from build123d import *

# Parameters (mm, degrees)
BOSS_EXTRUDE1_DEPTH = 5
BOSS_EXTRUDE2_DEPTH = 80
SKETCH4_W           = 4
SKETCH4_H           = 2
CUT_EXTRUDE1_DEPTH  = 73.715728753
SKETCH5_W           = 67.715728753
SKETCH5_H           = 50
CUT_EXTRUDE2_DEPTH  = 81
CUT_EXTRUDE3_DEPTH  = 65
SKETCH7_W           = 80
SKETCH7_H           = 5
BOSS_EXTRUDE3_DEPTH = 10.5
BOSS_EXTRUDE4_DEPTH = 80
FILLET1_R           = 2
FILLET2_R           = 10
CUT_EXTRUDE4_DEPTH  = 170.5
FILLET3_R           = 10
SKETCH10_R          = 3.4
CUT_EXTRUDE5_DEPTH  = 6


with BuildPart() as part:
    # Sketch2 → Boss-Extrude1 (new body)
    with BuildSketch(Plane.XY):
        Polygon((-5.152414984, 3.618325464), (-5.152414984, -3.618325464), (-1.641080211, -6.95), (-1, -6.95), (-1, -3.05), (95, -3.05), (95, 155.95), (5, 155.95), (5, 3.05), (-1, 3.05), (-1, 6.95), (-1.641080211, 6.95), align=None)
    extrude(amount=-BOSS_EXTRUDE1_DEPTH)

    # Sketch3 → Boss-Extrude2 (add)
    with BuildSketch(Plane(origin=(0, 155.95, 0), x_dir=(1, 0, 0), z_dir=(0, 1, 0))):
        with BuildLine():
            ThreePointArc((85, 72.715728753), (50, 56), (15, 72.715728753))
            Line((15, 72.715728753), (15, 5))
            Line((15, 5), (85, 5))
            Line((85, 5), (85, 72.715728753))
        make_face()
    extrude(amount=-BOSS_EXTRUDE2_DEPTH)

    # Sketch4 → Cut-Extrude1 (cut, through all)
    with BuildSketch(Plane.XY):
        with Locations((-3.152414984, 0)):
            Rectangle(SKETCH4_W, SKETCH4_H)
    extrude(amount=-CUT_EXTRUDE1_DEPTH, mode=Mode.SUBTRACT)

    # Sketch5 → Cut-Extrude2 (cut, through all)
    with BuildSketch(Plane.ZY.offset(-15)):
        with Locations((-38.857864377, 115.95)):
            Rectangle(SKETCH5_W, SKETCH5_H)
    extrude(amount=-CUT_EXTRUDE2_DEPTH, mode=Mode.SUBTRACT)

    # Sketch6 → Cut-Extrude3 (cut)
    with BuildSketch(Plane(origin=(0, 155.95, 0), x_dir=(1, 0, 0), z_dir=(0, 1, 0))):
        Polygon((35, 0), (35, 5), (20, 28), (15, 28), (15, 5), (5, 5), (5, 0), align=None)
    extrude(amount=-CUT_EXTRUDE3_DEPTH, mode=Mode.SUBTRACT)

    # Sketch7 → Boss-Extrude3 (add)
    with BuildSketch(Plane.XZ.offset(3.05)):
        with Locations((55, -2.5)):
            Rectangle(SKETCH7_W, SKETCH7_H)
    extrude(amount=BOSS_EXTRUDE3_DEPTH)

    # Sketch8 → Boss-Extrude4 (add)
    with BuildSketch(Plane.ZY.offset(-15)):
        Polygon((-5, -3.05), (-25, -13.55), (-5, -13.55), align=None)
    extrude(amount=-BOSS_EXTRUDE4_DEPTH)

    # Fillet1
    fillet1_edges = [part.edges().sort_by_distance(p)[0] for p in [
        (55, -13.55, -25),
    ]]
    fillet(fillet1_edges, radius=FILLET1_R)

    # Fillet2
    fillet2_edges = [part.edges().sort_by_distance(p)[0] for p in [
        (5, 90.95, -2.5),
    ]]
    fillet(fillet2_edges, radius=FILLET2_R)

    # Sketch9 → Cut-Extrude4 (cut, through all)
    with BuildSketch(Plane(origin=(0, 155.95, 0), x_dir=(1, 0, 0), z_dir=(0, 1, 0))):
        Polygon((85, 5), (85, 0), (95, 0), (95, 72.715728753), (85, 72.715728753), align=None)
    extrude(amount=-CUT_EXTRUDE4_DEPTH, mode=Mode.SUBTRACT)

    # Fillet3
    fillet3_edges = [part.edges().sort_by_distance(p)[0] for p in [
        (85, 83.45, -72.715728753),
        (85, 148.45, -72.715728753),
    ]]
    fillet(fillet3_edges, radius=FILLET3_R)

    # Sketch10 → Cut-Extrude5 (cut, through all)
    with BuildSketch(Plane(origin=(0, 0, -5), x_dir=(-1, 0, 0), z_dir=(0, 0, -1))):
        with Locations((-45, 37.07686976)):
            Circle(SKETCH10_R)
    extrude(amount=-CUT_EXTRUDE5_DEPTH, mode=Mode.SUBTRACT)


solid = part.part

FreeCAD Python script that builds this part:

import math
import FreeCAD as App
import Part
import Sketcher
Q = App.Units.Quantity


def edges_at(feature, points):
    """Names of the edges that pass closest to the given points."""
    edges = feature.Shape.Edges
    near = lambda p: min(range(len(edges)), key=lambda i: edges[i].distToShape(Part.Vertex(*p))[0])
    return sorted({f"Edge{near(p) + 1}" for p in points})


def add_polygon(sketch, points):
    """Adds a closed chain of lines whose ends are joined by coincident constraints."""
    first, n = sketch.GeometryCount, len(points)
    for a, b in zip(points, points[1:] + points[:1]):
        sketch.addGeometry(Part.LineSegment(App.Vector(*a, 0), App.Vector(*b, 0)), False)
    for i in range(n):
        sketch.addConstraint(Sketcher.Constraint("Coincident", first + i, 2, first + (i + 1) % n, 1))

doc = App.newDocument("Part")
body = doc.addObject("PartDesign::Body", "Body")

# Sketch on XY plane
sketch1 = body.newObject("Sketcher::SketchObject", "Sketch")
sketch1.AttachmentSupport = (doc.getObject("XY_Plane"), [""])
sketch1.MapMode = "FlatFace"
add_polygon(sketch1, [(-5.2, 3.6), (-5.2, -3.6), (-1.6, -7), (-1, -7), (-1, -3), (95, -3), (95, 155.9), (5, 155.9), (5, 3), (-1, 3), (-1, 7), (-1.6, 7)])  # lines 0-11
sketch1.addConstraint([
    Sketcher.Constraint("Vertical", 0),
    Sketcher.Constraint("Horizontal", 2),
    Sketcher.Constraint("Vertical", 3),
    Sketcher.Constraint("Horizontal", 4),
    Sketcher.Constraint("Vertical", 5),
    Sketcher.Constraint("Horizontal", 6),
    Sketcher.Constraint("Vertical", 7),
    Sketcher.Constraint("Horizontal", 8),
    Sketcher.Constraint("Vertical", 9),
    Sketcher.Constraint("Horizontal", 10),
    Sketcher.Constraint("Symmetric", 3, 2, 8, 2, -1),
    Sketcher.Constraint("Symmetric", 1, 2, 10, 2, -1),
    Sketcher.Constraint("Equal", 1, 11),
    Sketcher.Constraint("DistanceX", 4, 1, 4, 2, Q("96 mm")),
    Sketcher.Constraint("DistanceX", 6, 2, 6, 1, Q("90 mm")),
    Sketcher.Constraint("DistanceY", 5, 1, 5, 2, Q("159 mm")),
    Sketcher.Constraint("DistanceY", 3, 1, 3, 2, Q("3.9 mm")),
    Sketcher.Constraint("DistanceY", 7, 2, 7, 1, Q("152.9 mm")),
    Sketcher.Constraint("DistanceX", 2, 2, -1, 1, Q("1 mm")),
    Sketcher.Constraint("DistanceX", 2, 1, 2, 2, Q("0.64108 mm")),
    Sketcher.Constraint("DistanceY", 0, 2, 0, 1, Q("7.236651 mm")),
    Sketcher.Constraint("Distance", 1, Q("4.840406 mm")),
])
pad1 = body.newObject("PartDesign::Pad", "Pad")
pad1.Profile = sketch1
pad1.Length = 5
pad1.Reversed = True

# Sketch on XZ plane
sketch2 = body.newObject("Sketcher::SketchObject", "Sketch001")
sketch2.AttachmentSupport = (doc.getObject("XZ_Plane"), [""])
sketch2.MapMode = "FlatFace"
sketch2.AttachmentOffset = App.Placement(App.Vector(0, 0, -155.95), App.Rotation())
sketch2.addGeometry([
    Part.ArcOfCircle(Part.Circle(App.Vector(50, -101, 0), App.Vector(0, 0, 1), 45), math.radians(39), math.radians(141)),
    Part.LineSegment(App.Vector(15, -73, 0), App.Vector(15, -5, 0)),
    Part.LineSegment(App.Vector(15, -5, 0), App.Vector(85, -5, 0)),
    Part.LineSegment(App.Vector(85, -5, 0), App.Vector(85, -73, 0)),
], False)
sketch2.addConstraint([
    Sketcher.Constraint("Coincident", 0, 2, 1, 1),
    Sketcher.Constraint("Coincident", 1, 2, 2, 1),
    Sketcher.Constraint("Coincident", 2, 2, 3, 1),
    Sketcher.Constraint("Coincident", 3, 2, 0, 1),
    Sketcher.Constraint("Vertical", 1),
    Sketcher.Constraint("Horizontal", 2),
    Sketcher.Constraint("Vertical", 3),
    Sketcher.Constraint("Horizontal", 0, 2, 3, 2),
    Sketcher.Constraint("Radius", 0, Q("45 mm")),
    Sketcher.Constraint("DistanceX", 2, 1, 2, 2, Q("70 mm")),
    Sketcher.Constraint("DistanceX", -1, 1, 0, 3, Q("50 mm")),
    Sketcher.Constraint("DistanceY", 0, 3, -1, 1, Q("101 mm")),
    Sketcher.Constraint("DistanceY", 1, 2, -1, 1, Q("5 mm")),
])
pad2 = body.newObject("PartDesign::Pad", "Pad001")
pad2.Profile = sketch2
pad2.Length = 80

# Sketch on XY plane
sketch3 = body.newObject("Sketcher::SketchObject", "Sketch002")
sketch3.AttachmentSupport = (doc.getObject("XY_Plane"), [""])
sketch3.MapMode = "FlatFace"
add_polygon(sketch3, [(-5.2, 1), (-5.2, -1), (-1.2, -1), (-1.2, 1)])  # lines 0-3
sketch3.addConstraint([
    Sketcher.Constraint("Vertical", 0),
    Sketcher.Constraint("Horizontal", 1),
    Sketcher.Constraint("Vertical", 2),
    Sketcher.Constraint("Horizontal", 3),
    Sketcher.Constraint("DistanceX", 1, 1, 1, 2, Q("4 mm")),
    Sketcher.Constraint("DistanceY", 0, 2, 0, 1, Q("2 mm")),
    Sketcher.Constraint("DistanceY", 0, 2, -1, 1, Q("1 mm")),
    Sketcher.Constraint("DistanceX", 0, 2, -1, 1, Q("5.152415 mm")),
])
pocket1 = body.newObject("PartDesign::Pocket", "Pocket")
pocket1.Profile = sketch3
pocket1.Type = "ThroughAll"

# Sketch on YZ plane
sketch4 = body.newObject("Sketcher::SketchObject", "Sketch003")
sketch4.AttachmentSupport = (doc.getObject("YZ_Plane"), [""])
sketch4.MapMode = "FlatFace"
sketch4.AttachmentOffset = App.Placement(App.Vector(0, 0, 15), App.Rotation())
add_polygon(sketch4, [(141, -73), (91, -73), (91, -5), (141, -5)])  # lines 0-3
sketch4.addConstraint([
    Sketcher.Constraint("Horizontal", 0),
    Sketcher.Constraint("Vertical", 1),
    Sketcher.Constraint("Horizontal", 2),
    Sketcher.Constraint("Vertical", 3),
    Sketcher.Constraint("DistanceX", 0, 2, 0, 1, Q("50 mm")),
    Sketcher.Constraint("DistanceY", 1, 2, -1, 1, Q("5 mm")),
    Sketcher.Constraint("DistanceX", -1, 1, 0, 2, Q("90.95 mm")),
    Sketcher.Constraint("DistanceY", 1, 1, 1, 2, Q("67.715729 mm")),
])
pocket2 = body.newObject("PartDesign::Pocket", "Pocket001")
pocket2.Profile = sketch4
pocket2.Type = "ThroughAll"
pocket2.Reversed = True

# Sketch on XZ plane
sketch5 = body.newObject("Sketcher::SketchObject", "Sketch004")
sketch5.AttachmentSupport = (doc.getObject("XZ_Plane"), [""])
sketch5.MapMode = "FlatFace"
sketch5.AttachmentOffset = App.Placement(App.Vector(0, 0, -155.95), App.Rotation())
add_polygon(sketch5, [(35, 0), (35, -5), (20, -28), (15, -28), (15, -5), (5, -5), (5, 0)])  # lines 0-6
sketch5.addConstraint([
    Sketcher.Constraint("Vertical", 0),
    Sketcher.Constraint("Horizontal", 2),
    Sketcher.Constraint("Vertical", 3),
    Sketcher.Constraint("Horizontal", 4),
    Sketcher.Constraint("Vertical", 5),
    Sketcher.Constraint("Horizontal", 6),
    Sketcher.Constraint("PointOnObject", 5, 2, -1),
    Sketcher.Constraint("Horizontal", 0, 2, 3, 2),
    Sketcher.Constraint("Equal", 2, 0),
    Sketcher.Constraint("DistanceX", 2, 2, 2, 1, Q("5 mm")),
    Sketcher.Constraint("DistanceX", 4, 2, 4, 1, Q("10 mm")),
    Sketcher.Constraint("DistanceX", 6, 1, 6, 2, Q("30 mm")),
    Sketcher.Constraint("DistanceY", 3, 1, 3, 2, Q("23 mm")),
    Sketcher.Constraint("DistanceX", -1, 1, 0, 2, Q("35 mm")),
])
pocket3 = body.newObject("PartDesign::Pocket", "Pocket002")
pocket3.Profile = sketch5
pocket3.Length = 65
pocket3.Reversed = True

# Sketch on XZ plane
sketch6 = body.newObject("Sketcher::SketchObject", "Sketch005")
sketch6.AttachmentSupport = (doc.getObject("XZ_Plane"), [""])
sketch6.MapMode = "FlatFace"
sketch6.AttachmentOffset = App.Placement(App.Vector(0, 0, 3.05), App.Rotation())
add_polygon(sketch6, [(15, 0), (15, -5), (95, -5), (95, 0)])  # lines 0-3
sketch6.addConstraint([
    Sketcher.Constraint("Vertical", 0),
    Sketcher.Constraint("Horizontal", 1),
    Sketcher.Constraint("Vertical", 2),
    Sketcher.Constraint("Horizontal", 3),
    Sketcher.Constraint("PointOnObject", 2, 2, -1),
    Sketcher.Constraint("DistanceX", 1, 1, 1, 2, Q("80 mm")),
    Sketcher.Constraint("DistanceY", 0, 2, 0, 1, Q("5 mm")),
    Sketcher.Constraint("DistanceX", -1, 1, 0, 2, Q("15 mm")),
])
pad3 = body.newObject("PartDesign::Pad", "Pad002")
pad3.Profile = sketch6
pad3.Length = 10.5

# Sketch on YZ plane
sketch7 = body.newObject("Sketcher::SketchObject", "Sketch006")
sketch7.AttachmentSupport = (doc.getObject("YZ_Plane"), [""])
sketch7.MapMode = "FlatFace"
sketch7.AttachmentOffset = App.Placement(App.Vector(0, 0, 15), App.Rotation())
add_polygon(sketch7, [(-3, -5), (-14, -25), (-14, -5)])  # lines 0-2
sketch7.addConstraint([
    Sketcher.Constraint("Vertical", 1),
    Sketcher.Constraint("Horizontal", 2),
    Sketcher.Constraint("DistanceY", 1, 1, 1, 2, Q("20 mm")),
    Sketcher.Constraint("DistanceX", 2, 1, 2, 2, Q("10.5 mm")),
    Sketcher.Constraint("DistanceY", 0, 2, -1, 1, Q("25 mm")),
    Sketcher.Constraint("DistanceX", 0, 2, -1, 1, Q("13.55 mm")),
])
pad4 = body.newObject("PartDesign::Pad", "Pad003")
pad4.Profile = sketch7
pad4.Length = 80
doc.recompute()

fillet = body.newObject("PartDesign::Fillet", "Fillet")
fillet.Base = (pad4, edges_at(pad4, [(55, -13.55, -25)]))
fillet.Radius = 2
doc.recompute()

fillet2 = body.newObject("PartDesign::Fillet", "Fillet001")
fillet2.Base = (fillet, edges_at(fillet, [(5, 90.95, -2.5)]))
fillet2.Radius = 10

# Sketch on XZ plane
sketch8 = body.newObject("Sketcher::SketchObject", "Sketch007")
sketch8.AttachmentSupport = (doc.getObject("XZ_Plane"), [""])
sketch8.MapMode = "FlatFace"
sketch8.AttachmentOffset = App.Placement(App.Vector(0, 0, -155.95), App.Rotation())
add_polygon(sketch8, [(85, 0), (95, 0), (95, -73), (85, -73)])  # lines 0-3
sketch8.addConstraint([
    Sketcher.Constraint("Horizontal", 0),
    Sketcher.Constraint("Vertical", 1),
    Sketcher.Constraint("Horizontal", 2),
    Sketcher.Constraint("Vertical", 3),
    Sketcher.Constraint("PointOnObject", 0, 2, -1),
    Sketcher.Constraint("DistanceX", 0, 1, 0, 2, Q("10 mm")),
    Sketcher.Constraint("DistanceX", -1, 1, 0, 2, Q("95 mm")),
    Sketcher.Constraint("DistanceY", 1, 2, 1, 1, Q("72.715729 mm")),
])
pocket4 = body.newObject("PartDesign::Pocket", "Pocket003")
pocket4.Profile = sketch8
pocket4.Type = "ThroughAll"
pocket4.Reversed = True
doc.recompute()

fillet3 = body.newObject("PartDesign::Fillet", "Fillet002")
fillet3.Base = (pocket4, edges_at(pocket4, [(85, 83.45, -72.716), (85, 148.45, -72.716)]))
fillet3.Radius = 10

# Sketch on XY plane
sketch9 = body.newObject("Sketcher::SketchObject", "Sketch008")
sketch9.AttachmentSupport = (doc.getObject("XY_Plane"), [""])
sketch9.MapMode = "FlatFace"
sketch9.AttachmentOffset = App.Placement(App.Vector(0, 0, -5), App.Rotation())
sketch9.addGeometry(Part.Circle(App.Vector(45, 37.1, 0), App.Vector(0, 0, 1), 3.4), False)
sketch9.addConstraint([
    Sketcher.Constraint("Diameter", 0, Q("6.8 mm")),
    Sketcher.Constraint("DistanceX", -1, 1, 0, 3, Q("45 mm")),
    Sketcher.Constraint("DistanceY", -1, 1, 0, 3, Q("37.07687 mm")),
])
pocket5 = body.newObject("PartDesign::Pocket", "Pocket004")
pocket5.Profile = sketch9
pocket5.Type = "ThroughAll"
pocket5.Reversed = True

doc.recompute()
